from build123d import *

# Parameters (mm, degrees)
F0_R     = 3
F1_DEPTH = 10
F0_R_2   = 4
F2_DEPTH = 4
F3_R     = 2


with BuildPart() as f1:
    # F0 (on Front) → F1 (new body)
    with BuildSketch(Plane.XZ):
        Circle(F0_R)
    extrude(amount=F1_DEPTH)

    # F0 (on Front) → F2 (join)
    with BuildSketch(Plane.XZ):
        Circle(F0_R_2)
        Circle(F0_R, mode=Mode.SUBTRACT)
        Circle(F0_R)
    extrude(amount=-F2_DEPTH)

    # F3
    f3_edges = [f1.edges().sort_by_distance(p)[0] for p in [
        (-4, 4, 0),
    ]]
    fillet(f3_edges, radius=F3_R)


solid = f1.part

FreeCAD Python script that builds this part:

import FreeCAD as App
import Part
import Sketcher
from FreeCAD import Vector
Q = App.Units.Quantity


def edges_at(feature, points):
    """Names of the edges that pass closest to the given points."""
    edges = feature.Shape.Edges
    near = lambda p: min(range(len(edges)), key=lambda i: edges[i].distToShape(Part.Vertex(*p))[0])
    return sorted({f"Edge{near(p) + 1}" for p in points})

doc = App.newDocument("Part")
body = doc.addObject("PartDesign::Body", "Body")

# Sketch on XZ plane
sketch1 = body.newObject("Sketcher::SketchObject", "Sketch")
sketch1.AttachmentSupport = (doc.getObject("XZ_Plane"), [""])
sketch1.MapMode = "FlatFace"
sketch1.addGeometry(Part.Circle(Vector(0, 0, 0), Vector(0, 0, 1), 3), False)
sketch1.addConstraint(Sketcher.Constraint("Coincident", 0, 3, -1, 1))
sketch1.addConstraint(Sketcher.Constraint("Diameter", 0, Q("6 mm")))
pad1 = body.newObject("PartDesign::Pad", "Pad")
pad1.Profile = sketch1
pad1.Length = 10

# Sketch on XZ plane
sketch2 = body.newObject("Sketcher::SketchObject", "Sketch001")
sketch2.AttachmentSupport = (doc.getObject("XZ_Plane"), [""])
sketch2.MapMode = "FlatFace"
sketch2.addGeometry(Part.Circle(Vector(0, 0, 0), Vector(0, 0, 1), 4), False)
sketch2.addConstraint(Sketcher.Constraint("Coincident", 0, 3, -1, 1))
sketch2.addConstraint(Sketcher.Constraint("Diameter", 0, Q("8 mm")))
pad2 = body.newObject("PartDesign::Pad", "Pad001")
pad2.Profile = sketch2
pad2.Length = 4
pad2.Reversed = True
doc.recompute()

fillet = body.newObject("PartDesign::Fillet", "Fillet")
fillet.Base = (pad2, edges_at(pad2, [(-4, 4, 0)]))
fillet.Radius = 2

doc.recompute()
